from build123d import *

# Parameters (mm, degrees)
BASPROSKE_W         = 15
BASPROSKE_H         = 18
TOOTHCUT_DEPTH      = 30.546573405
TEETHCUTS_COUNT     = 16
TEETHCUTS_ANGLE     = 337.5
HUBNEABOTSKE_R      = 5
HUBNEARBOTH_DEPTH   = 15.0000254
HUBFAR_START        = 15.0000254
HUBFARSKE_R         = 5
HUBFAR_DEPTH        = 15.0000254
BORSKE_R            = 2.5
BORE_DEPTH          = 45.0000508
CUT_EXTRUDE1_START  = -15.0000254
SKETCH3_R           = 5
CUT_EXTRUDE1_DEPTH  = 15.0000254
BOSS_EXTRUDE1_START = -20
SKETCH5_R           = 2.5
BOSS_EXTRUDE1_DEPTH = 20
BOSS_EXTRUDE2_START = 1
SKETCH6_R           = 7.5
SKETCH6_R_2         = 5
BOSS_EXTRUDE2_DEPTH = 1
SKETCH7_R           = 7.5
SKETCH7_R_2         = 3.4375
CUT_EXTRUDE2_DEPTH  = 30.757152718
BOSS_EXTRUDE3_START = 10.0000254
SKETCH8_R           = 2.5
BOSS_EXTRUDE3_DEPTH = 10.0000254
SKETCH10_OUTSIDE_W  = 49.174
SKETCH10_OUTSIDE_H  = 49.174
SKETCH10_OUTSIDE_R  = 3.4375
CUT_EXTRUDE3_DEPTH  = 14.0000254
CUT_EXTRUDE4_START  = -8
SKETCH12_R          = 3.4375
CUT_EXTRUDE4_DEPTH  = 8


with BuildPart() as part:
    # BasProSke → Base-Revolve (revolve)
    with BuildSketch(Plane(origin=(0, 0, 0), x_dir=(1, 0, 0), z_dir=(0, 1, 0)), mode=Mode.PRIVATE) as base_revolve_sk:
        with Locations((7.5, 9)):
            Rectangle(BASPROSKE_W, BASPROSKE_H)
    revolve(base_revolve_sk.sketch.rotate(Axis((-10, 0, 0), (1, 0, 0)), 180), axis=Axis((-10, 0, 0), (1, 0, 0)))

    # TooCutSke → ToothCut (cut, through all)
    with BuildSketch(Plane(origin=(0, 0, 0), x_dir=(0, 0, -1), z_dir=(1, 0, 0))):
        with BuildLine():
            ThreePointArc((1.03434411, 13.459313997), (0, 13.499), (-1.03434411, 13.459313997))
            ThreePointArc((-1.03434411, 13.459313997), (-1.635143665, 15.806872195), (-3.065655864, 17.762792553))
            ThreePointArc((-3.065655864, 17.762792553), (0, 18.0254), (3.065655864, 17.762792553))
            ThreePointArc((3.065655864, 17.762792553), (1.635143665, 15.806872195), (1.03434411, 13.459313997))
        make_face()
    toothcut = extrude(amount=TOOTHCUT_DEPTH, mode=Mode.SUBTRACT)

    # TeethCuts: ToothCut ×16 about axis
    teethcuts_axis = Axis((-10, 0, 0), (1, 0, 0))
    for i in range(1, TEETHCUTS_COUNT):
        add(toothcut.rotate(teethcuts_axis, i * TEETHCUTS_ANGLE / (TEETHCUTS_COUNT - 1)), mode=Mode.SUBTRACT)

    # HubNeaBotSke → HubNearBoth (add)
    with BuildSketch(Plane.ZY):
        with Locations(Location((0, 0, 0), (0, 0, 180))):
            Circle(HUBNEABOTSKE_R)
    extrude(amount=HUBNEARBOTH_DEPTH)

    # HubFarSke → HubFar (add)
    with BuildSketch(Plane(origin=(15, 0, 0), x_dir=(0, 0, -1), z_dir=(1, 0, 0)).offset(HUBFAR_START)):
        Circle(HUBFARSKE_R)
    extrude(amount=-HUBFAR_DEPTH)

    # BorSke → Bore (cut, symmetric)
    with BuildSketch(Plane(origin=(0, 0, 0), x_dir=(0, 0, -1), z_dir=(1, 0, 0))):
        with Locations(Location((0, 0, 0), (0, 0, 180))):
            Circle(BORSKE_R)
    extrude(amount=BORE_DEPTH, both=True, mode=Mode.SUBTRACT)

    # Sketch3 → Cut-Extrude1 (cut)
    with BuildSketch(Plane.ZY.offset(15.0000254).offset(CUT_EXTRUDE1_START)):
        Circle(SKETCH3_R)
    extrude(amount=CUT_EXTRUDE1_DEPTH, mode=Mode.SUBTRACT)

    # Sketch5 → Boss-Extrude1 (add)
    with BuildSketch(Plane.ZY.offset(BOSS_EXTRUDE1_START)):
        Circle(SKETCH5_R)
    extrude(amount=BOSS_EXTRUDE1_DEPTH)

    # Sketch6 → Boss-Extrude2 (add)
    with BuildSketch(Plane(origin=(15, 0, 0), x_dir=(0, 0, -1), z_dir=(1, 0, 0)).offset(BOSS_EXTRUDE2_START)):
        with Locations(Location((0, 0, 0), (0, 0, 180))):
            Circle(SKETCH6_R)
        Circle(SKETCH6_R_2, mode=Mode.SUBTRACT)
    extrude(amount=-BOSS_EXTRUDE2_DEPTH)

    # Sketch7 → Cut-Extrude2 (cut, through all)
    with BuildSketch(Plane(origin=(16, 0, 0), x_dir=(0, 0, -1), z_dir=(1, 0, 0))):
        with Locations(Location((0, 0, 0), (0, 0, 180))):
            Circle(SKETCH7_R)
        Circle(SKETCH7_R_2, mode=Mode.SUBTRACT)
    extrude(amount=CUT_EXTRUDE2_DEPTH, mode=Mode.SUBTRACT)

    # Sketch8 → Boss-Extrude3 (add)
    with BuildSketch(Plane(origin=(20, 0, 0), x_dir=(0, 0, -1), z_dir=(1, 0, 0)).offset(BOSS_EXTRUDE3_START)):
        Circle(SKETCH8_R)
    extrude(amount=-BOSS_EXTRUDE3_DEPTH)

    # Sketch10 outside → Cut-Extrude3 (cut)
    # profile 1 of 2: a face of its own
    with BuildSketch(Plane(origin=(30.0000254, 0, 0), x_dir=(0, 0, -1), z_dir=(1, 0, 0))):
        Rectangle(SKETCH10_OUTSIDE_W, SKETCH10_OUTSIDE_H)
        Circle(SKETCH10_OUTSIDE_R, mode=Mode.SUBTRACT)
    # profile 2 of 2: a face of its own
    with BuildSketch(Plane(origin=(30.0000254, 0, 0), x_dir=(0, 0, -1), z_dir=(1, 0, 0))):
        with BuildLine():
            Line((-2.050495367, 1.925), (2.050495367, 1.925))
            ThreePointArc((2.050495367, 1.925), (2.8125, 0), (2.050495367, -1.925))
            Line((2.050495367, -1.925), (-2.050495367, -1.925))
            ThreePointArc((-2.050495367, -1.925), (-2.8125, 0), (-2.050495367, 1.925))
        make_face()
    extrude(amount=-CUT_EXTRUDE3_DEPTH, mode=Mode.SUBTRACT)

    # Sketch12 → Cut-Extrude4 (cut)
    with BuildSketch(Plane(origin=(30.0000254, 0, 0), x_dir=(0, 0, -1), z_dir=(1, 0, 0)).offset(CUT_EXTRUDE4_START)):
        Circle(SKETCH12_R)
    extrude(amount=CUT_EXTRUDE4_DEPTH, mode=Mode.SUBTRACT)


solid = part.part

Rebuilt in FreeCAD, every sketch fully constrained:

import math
import FreeCAD as App
import Part
import Sketcher
Q = App.Units.Quantity


def add_polygon(sketch, points):
    """Adds a closed chain of lines whose ends are joined by coincident constraints."""
    first, n = sketch.GeometryCount, len(points)
    for a, b in zip(points, points[1:] + points[:1]):
        sketch.addGeometry(Part.LineSegment(App.Vector(*a, 0), App.Vector(*b, 0)), False)
    for i in range(n):
        sketch.addConstraint(Sketcher.Constraint("Coincident", first + i, 2, first + (i + 1) % n, 1))

doc = App.newDocument("Part")
body = doc.addObject("PartDesign::Body", "Body")

# Sketch on XZ plane
sketch1 = body.newObject("Sketcher::SketchObject", "Sketch")
sketch1.AttachmentSupport = (doc.getObject("XZ_Plane"), [""])
sketch1.MapMode = "FlatFace"
add_polygon(sketch1, [(0, -18), (0, 0), (15, 0), (15, -18)])  # lines 0-3
sketch1.addConstraint([
    Sketcher.Constraint("Vertical", 0),
    Sketcher.Constraint("Horizontal", 1),
    Sketcher.Constraint("Vertical", 2),
    Sketcher.Constraint("Horizontal", 3),
    Sketcher.Constraint("Coincident", 0, 2, -1, 1),
    Sketcher.Constraint("DistanceX", 1, 1, 1, 2, Q("15 mm")),
    Sketcher.Constraint("DistanceY", 0, 1, 0, 2, Q("18 mm")),
])
revolution = body.newObject("PartDesign::Revolution", "Revolution")
revolution.Profile = sketch1
revolution.ReferenceAxis = (sketch1, ["H_Axis"])
revolution.Angle = 360

# Sketch on YZ plane
sketch2 = body.newObject("Sketcher::SketchObject", "Sketch001")
sketch2.AttachmentSupport = (doc.getObject("YZ_Plane"), [""])
sketch2.MapMode = "FlatFace"
sketch2.addGeometry([
    Part.ArcOfCircle(Part.Circle(App.Vector(0, 0, 0), App.Vector(0, 0, 1), 13.499), math.radians(-4.394525), math.radians(4.394525)),
    Part.ArcOfCircle(Part.Circle(App.Vector(13.075007, -7.422795, 0), App.Vector(0, 0, 1), 6.4), math.radians(42.906426), math.radians(86.557431)),
    Part.ArcOfCircle(Part.Circle(App.Vector(0, 0, 0), App.Vector(0, 0, 1), 18.0254), math.radians(-9.792134), math.radians(9.792134)),
    Part.ArcOfCircle(Part.Circle(App.Vector(13.075007, 7.422795, 0), App.Vector(0, 0, 1), 6.4), math.radians(-86.557431), math.radians(-42.906426)),
], False)
sketch2.addConstraint([
    Sketcher.Constraint("Coincident", 0, 1, 1, 2),
    Sketcher.Constraint("Coincident", 1, 1, 2, 1),
    Sketcher.Constraint("Coincident", 2, 2, 3, 2),
    Sketcher.Constraint("Coincident", 3, 1, 0, 2),
    Sketcher.Constraint("Coincident", 0, 3, -1, 1),
    Sketcher.Constraint("Coincident", 2, 3, -1, 1),
    Sketcher.Constraint("Equal", 1, 3),
    Sketcher.Constraint("Symmetric", 1, 3, 3, 3, -1),
    Sketcher.Constraint("Radius", 1, Q("6.4 mm")),
    Sketcher.Constraint("Radius", 0, Q("13.499 mm")),
    Sketcher.Constraint("Radius", 2, Q("18.0254 mm")),
    Sketcher.Constraint("DistanceY", 0, 1, 2, 2, Q("4.1 mm")),
    Sketcher.Constraint("DistanceY", 1, 3, 3, 3, Q("14.84559 mm")),
])
pocket1 = body.newObject("PartDesign::Pocket", "Pocket")
pocket1.Profile = sketch2
pocket1.Type = "ThroughAll"
pocket1.Reversed = True
doc.recompute()

polarpattern = body.newObject("PartDesign::PolarPattern", "PolarPattern")
polarpattern.Originals = [pocket1]
polarpattern.Axis = (doc.getObject("X_Axis"), [""])
polarpattern.Angle = 360
polarpattern.Occurrences = 16
body.Tip = polarpattern

# Sketch on YZ plane
sketch3 = body.newObject("Sketcher::SketchObject", "Sketch002")
sketch3.AttachmentSupport = (doc.getObject("YZ_Plane"), [""])
sketch3.MapMode = "FlatFace"
sketch3.addGeometry(Part.Circle(App.Vector(0, 0, 0), App.Vector(0, 0, 1), 5), False)
sketch3.addConstraint([
    Sketcher.Constraint("Coincident", 0, 3, -1, 1),
    Sketcher.Constraint("Diameter", 0, Q("10 mm")),
])
pad1 = body.newObject("PartDesign::Pad", "Pad")
pad1.Profile = sketch3
pad1.Length = 15.000025
pad1.Reversed = True

# Sketch on YZ plane
sketch4 = body.newObject("Sketcher::SketchObject", "Sketch003")
sketch4.AttachmentSupport = (doc.getObject("YZ_Plane"), [""])
sketch4.MapMode = "FlatFace"
sketch4.AttachmentOffset = App.Placement(App.Vector(0, 0, 30.000025), App.Rotation())
sketch4.addGeometry(Part.Circle(App.Vector(0, 0, 0), App.Vector(0, 0, 1), 5), False)
sketch4.addConstraint([
    Sketcher.Constraint("Coincident", 0, 3, -1, 1),
    Sketcher.Constraint("Diameter", 0, Q("10 mm")),
])
pad2 = body.newObject("PartDesign::Pad", "Pad001")
pad2.Profile = sketch4
pad2.Length = 15.000025
pad2.Reversed = True

# Sketch on YZ plane
sketch5 = body.newObject("Sketcher::SketchObject", "Sketch004")
sketch5.AttachmentSupport = (doc.getObject("YZ_Plane"), [""])
sketch5.MapMode = "FlatFace"
sketch5.addGeometry(Part.Circle(App.Vector(0, 0, 0), App.Vector(0, 0, 1), 2.5), False)
sketch5.addConstraint([
    Sketcher.Constraint("Coincident", 0, 3, -1, 1),
    Sketcher.Constraint("Diameter", 0, Q("5 mm")),
])
pocket2 = body.newObject("PartDesign::Pocket", "Pocket001")
pocket2.Profile = sketch5
pocket2.Length = 90.000102
pocket2.Midplane = True

# Sketch on YZ plane
sketch6 = body.newObject("Sketcher::SketchObject", "Sketch005")
sketch6.AttachmentSupport = (doc.getObject("YZ_Plane"), [""])
sketch6.MapMode = "FlatFace"
sketch6.addGeometry(Part.Circle(App.Vector(0, 0, 0), App.Vector(0, 0, 1), 5), False)
sketch6.addConstraint([
    Sketcher.Constraint("Coincident", 0, 3, -1, 1),
    Sketcher.Constraint("Diameter", 0, Q("10 mm")),
])
pocket3 = body.newObject("PartDesign::Pocket", "Pocket002")
pocket3.Profile = sketch6
pocket3.Length = 15.000025

# Sketch on YZ plane
sketch7 = body.newObject("Sketcher::SketchObject", "Sketch006")
sketch7.AttachmentSupport = (doc.getObject("YZ_Plane"), [""])
sketch7.MapMode = "FlatFace"
sketch7.AttachmentOffset = App.Placement(App.Vector(0, 0, 20), App.Rotation())
sketch7.addGeometry(Part.Circle(App.Vector(0, 0, 0), App.Vector(0, 0, 1), 2.5), False)
sketch7.addConstraint([
    Sketcher.Constraint("Coincident", 0, 3, -1, 1),
    Sketcher.Constraint("Diameter", 0, Q("5 mm")),
])
pad3 = body.newObject("PartDesign::Pad", "Pad002")
pad3.Profile = sketch7
pad3.Length = 20
pad3.Reversed = True

# Sketch on YZ plane
sketch8 = body.newObject("Sketcher::SketchObject", "Sketch007")
sketch8.AttachmentSupport = (doc.getObject("YZ_Plane"), [""])
sketch8.MapMode = "FlatFace"
sketch8.AttachmentOffset = App.Placement(App.Vector(0, 0, 16), App.Rotation())
sketch8.addGeometry([
    Part.Circle(App.Vector(0, 0, 0), App.Vector(0, 0, 1), 7.5),
    Part.Circle(App.Vector(0, 0, 0), App.Vector(0, 0, 1), 5),
], False)
sketch8.addConstraint([
    Sketcher.Constraint("Coincident", 0, 3, -1, 1),
    Sketcher.Constraint("Coincident", 1, 3, -1, 1),
    Sketcher.Constraint("Diameter", 0, Q("15 mm")),
    Sketcher.Constraint("Diameter", 1, Q("10 mm")),
])
pad4 = body.newObject("PartDesign::Pad", "Pad003")
pad4.Profile = sketch8
pad4.Length = 1
pad4.Reversed = True

# Sketch on YZ plane
sketch9 = body.newObject("Sketcher::SketchObject", "Sketch008")
sketch9.AttachmentSupport = (doc.getObject("YZ_Plane"), [""])
sketch9.MapMode = "FlatFace"
sketch9.AttachmentOffset = App.Placement(App.Vector(0, 0, 16), App.Rotation())
sketch9.addGeometry([
    Part.Circle(App.Vector(0, 0, 0), App.Vector(0, 0, 1), 7.5),
    Part.Circle(App.Vector(0, 0, 0), App.Vector(0, 0, 1), 3.4375),
], False)
sketch9.addConstraint([
    Sketcher.Constraint("Coincident", 0, 3, -1, 1),
    Sketcher.Constraint("Coincident", 1, 3, -1, 1),
    Sketcher.Constraint("Diameter", 0, Q("15 mm")),
    Sketcher.Constraint("Diameter", 1, Q("6.875 mm")),
])
pocket4 = body.newObject("PartDesign::Pocket", "Pocket003")
pocket4.Profile = sketch9
pocket4.Type = "ThroughAll"
pocket4.Reversed = True

# Sketch on YZ plane
sketch10 = body.newObject("Sketcher::SketchObject", "Sketch009")
sketch10.AttachmentSupport = (doc.getObject("YZ_Plane"), [""])
sketch10.MapMode = "FlatFace"
sketch10.AttachmentOffset = App.Placement(App.Vector(0, 0, 30.000025), App.Rotation())
sketch10.addGeometry(Part.Circle(App.Vector(0, 0, 0), App.Vector(0, 0, 1), 2.5), False)
sketch10.addConstraint([
    Sketcher.Constraint("Coincident", 0, 3, -1, 1),
    Sketcher.Constraint("Diameter", 0, Q("5 mm")),
])
pad5 = body.newObject("PartDesign::Pad", "Pad004")
pad5.Profile = sketch10
pad5.Length = 10.000025
pad5.Reversed = True

# Sketch on YZ plane
sketch11 = body.newObject("Sketcher::SketchObject", "Sketch010")
sketch11.AttachmentSupport = (doc.getObject("YZ_Plane"), [""])
sketch11.MapMode = "FlatFace"
sketch11.AttachmentOffset = App.Placement(App.Vector(0, 0, 30.000025), App.Rotation())
add_polygon(sketch11, [(24.587, 24.587), (-24.587, 24.587), (-24.587, -24.587), (24.587, -24.587)])  # lines 0-3
sketch11.addGeometry(Part.Circle(App.Vector(0, 0, 0), App.Vector(0, 0, 1), 3.4375), False)  # 4
sketch11.addGeometry(Part.LineSegment(App.Vector(1.925, -2.050495, 0), App.Vector(1.925, 2.050495, 0)), False)  # 5
sketch11.addGeometry(Part.ArcOfCircle(Part.Circle(App.Vector(0, 0, 0), App.Vector(0, 0, 1), 2.8125), math.radians(46.808068), math.radians(133.191932)), False)  # 6
sketch11.addGeometry(Part.LineSegment(App.Vector(-1.925, 2.050495, 0), App.Vector(-1.925, -2.050495, 0)), False)  # 7
sketch11.addGeometry(Part.ArcOfCircle(Part.Circle(App.Vector(0, 0, 0), App.Vector(0, 0, 1), 2.8125), math.radians(-133.191932), math.radians(-46.808068)), False)  # 8
sketch11.addConstraint([
    Sketcher.Constraint("Coincident", 5, 2, 6, 1),
    Sketcher.Constraint("Coincident", 6, 2, 7, 1),
    Sketcher.Constraint("Coincident", 7, 2, 8, 1),
    Sketcher.Constraint("Coincident", 8, 2, 5, 1),
    Sketcher.Constraint("Horizontal", 0),
    Sketcher.Constraint("Vertical", 1),
    Sketcher.Constraint("Horizontal", 2),
    Sketcher.Constraint("Vertical", 3),
    Sketcher.Constraint("Vertical", 5),
    Sketcher.Constraint("Vertical", 7),
    Sketcher.Constraint("Coincident", 4, 3, -1, 1),
    Sketcher.Constraint("Coincident", 6, 3, -1, 1),
    Sketcher.Constraint("Coincident", 8, 3, -1, 1),
    Sketcher.Constraint("Equal", 6, 8),
    Sketcher.Constraint("Symmetric", 0, 2, 2, 2, -1, 1),
    Sketcher.Constraint("Horizontal", 5, 2, 6, 2),
    Sketcher.Constraint("Equal", 2, 1),
    Sketcher.Constraint("Diameter", 4, Q("6.875 mm")),
    Sketcher.Constraint("Radius", 6, Q("2.8125 mm")),
    Sketcher.Constraint("DistanceX", 0, 2, 0, 1, Q("49.174 mm")),
    Sketcher.Constraint("DistanceX", 6, 2, 5, 2, Q("3.85 mm")),
])
pocket5 = body.newObject("PartDesign::Pocket", "Pocket004")
pocket5.Profile = sketch11
pocket5.Length = 14.000025

# Sketch on YZ plane
sketch12 = body.newObject("Sketcher::SketchObject", "Sketch011")
sketch12.AttachmentSupport = (doc.getObject("YZ_Plane"), [""])
sketch12.MapMode = "FlatFace"
sketch12.AttachmentOffset = App.Placement(App.Vector(0, 0, 22.000025), App.Rotation())
sketch12.addGeometry(Part.Circle(App.Vector(0, 0, 0), App.Vector(0, 0, 1), 3.4375), False)
sketch12.addConstraint([
    Sketcher.Constraint("Coincident", 0, 3, -1, 1),
    Sketcher.Constraint("Diameter", 0, Q("6.875 mm")),
])
pocket6 = body.newObject("PartDesign::Pocket", "Pocket005")
pocket6.Profile = sketch12
pocket6.Length = 8
pocket6.Reversed = True

doc.recompute()
